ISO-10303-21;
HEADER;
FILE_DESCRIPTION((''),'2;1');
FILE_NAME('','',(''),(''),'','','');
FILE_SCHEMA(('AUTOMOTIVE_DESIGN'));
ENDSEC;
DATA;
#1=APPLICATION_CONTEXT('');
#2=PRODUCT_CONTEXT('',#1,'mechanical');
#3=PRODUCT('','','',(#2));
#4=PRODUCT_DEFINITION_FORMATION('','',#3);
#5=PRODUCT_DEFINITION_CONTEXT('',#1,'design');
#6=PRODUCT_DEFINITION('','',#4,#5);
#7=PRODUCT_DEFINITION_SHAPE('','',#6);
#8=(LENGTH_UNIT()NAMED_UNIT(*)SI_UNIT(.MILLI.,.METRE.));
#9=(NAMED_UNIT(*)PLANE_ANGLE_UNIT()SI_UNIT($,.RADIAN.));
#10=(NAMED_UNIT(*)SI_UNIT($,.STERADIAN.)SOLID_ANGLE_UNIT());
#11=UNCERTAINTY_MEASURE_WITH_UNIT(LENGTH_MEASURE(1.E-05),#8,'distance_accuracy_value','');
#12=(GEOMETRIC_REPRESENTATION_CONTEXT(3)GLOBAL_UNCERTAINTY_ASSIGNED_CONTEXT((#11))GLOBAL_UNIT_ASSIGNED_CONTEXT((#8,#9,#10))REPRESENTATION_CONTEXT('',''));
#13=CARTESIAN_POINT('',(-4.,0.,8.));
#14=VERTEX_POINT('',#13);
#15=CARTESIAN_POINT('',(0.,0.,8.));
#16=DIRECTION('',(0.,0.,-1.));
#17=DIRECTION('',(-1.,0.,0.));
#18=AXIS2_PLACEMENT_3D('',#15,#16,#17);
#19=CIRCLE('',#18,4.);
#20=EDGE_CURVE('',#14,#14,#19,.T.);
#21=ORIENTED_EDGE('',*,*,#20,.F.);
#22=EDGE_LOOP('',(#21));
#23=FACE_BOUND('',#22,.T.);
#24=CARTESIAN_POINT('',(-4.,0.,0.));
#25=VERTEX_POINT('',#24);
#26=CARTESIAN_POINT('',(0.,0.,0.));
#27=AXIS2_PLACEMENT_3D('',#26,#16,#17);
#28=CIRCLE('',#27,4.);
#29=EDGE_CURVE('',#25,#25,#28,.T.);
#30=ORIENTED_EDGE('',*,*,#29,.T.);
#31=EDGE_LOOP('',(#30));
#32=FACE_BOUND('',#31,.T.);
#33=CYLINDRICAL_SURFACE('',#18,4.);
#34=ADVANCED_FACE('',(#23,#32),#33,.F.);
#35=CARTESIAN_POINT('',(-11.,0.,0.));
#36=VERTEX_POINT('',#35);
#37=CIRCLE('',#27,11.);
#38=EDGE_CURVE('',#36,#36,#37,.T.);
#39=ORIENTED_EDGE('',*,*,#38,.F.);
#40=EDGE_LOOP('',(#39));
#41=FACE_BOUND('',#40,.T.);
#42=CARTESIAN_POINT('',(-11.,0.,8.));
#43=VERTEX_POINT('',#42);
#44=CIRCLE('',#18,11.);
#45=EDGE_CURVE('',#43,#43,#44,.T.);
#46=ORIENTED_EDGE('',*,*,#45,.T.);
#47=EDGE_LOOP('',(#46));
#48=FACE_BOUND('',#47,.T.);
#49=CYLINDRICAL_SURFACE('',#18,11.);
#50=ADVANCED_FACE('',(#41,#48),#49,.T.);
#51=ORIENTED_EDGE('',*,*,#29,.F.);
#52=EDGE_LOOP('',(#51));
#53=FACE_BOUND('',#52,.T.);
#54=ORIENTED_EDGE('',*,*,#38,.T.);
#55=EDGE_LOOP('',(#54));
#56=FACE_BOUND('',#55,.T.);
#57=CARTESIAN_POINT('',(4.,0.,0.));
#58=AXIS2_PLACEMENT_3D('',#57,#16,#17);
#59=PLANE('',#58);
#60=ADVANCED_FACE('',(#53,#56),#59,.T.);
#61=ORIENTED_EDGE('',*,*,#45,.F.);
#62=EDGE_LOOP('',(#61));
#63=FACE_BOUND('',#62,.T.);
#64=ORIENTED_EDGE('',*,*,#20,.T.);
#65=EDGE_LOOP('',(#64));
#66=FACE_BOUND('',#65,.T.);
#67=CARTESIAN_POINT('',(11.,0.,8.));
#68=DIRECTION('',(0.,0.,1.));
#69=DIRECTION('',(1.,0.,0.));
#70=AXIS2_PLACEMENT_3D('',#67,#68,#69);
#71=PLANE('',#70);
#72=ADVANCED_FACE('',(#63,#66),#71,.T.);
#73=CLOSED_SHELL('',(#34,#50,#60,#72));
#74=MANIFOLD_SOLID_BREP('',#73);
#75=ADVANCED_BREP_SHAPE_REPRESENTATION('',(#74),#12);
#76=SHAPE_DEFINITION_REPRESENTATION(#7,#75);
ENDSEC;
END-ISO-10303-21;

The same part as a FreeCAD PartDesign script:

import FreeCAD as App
import Part
import Sketcher


def add_polygon(sketch, points):
    """Adds a closed chain of lines whose ends are joined by coincident constraints."""
    first, n = sketch.GeometryCount, len(points)
    for a, b in zip(points, points[1:] + points[:1]):
        sketch.addGeometry(Part.LineSegment(App.Vector(*a, 0), App.Vector(*b, 0)), False)
    for i in range(n):
        sketch.addConstraint(Sketcher.Constraint("Coincident", first + i, 2, first + (i + 1) % n, 1))

doc = App.newDocument("Part")
body = doc.addObject("PartDesign::Body", "Body")

sketch1 = doc.addObject("Sketcher::SketchObject", "Sketch")
body.addObject(sketch1)
sketch1.AttachmentSupport = (doc.XZ_Plane, [""])
sketch1.MapMode = "FlatFace"
add_polygon(sketch1, [(4, 8), (4, 0), (11, 0), (11, 8)])
sketch1.addConstraint(Sketcher.Constraint("Vertical", 0))
sketch1.addConstraint(Sketcher.Constraint("Horizontal", 1))
sketch1.addConstraint(Sketcher.Constraint("Vertical", 2))
sketch1.addConstraint(Sketcher.Constraint("Horizontal", 3))
sketch1.addConstraint(Sketcher.Constraint("PointOnObject", 0, 2, -1))
sketch1.addConstraint(Sketcher.Constraint("DistanceX", 1, 1, 1, 2, 7.0))
sketch1.addConstraint(Sketcher.Constraint("DistanceY", 0, 2, 0, 1, 8.0))
sketch1.addConstraint(Sketcher.Constraint("DistanceX", -1, 1, 0, 2, 4.0))
revolution = doc.addObject("PartDesign::Revolution", "Revolution")
body.addObject(revolution)
revolution.Profile = sketch1
revolution.ReferenceAxis = (sketch1, ["V_Axis"])
revolution.Angle = 360

doc.recompute()
